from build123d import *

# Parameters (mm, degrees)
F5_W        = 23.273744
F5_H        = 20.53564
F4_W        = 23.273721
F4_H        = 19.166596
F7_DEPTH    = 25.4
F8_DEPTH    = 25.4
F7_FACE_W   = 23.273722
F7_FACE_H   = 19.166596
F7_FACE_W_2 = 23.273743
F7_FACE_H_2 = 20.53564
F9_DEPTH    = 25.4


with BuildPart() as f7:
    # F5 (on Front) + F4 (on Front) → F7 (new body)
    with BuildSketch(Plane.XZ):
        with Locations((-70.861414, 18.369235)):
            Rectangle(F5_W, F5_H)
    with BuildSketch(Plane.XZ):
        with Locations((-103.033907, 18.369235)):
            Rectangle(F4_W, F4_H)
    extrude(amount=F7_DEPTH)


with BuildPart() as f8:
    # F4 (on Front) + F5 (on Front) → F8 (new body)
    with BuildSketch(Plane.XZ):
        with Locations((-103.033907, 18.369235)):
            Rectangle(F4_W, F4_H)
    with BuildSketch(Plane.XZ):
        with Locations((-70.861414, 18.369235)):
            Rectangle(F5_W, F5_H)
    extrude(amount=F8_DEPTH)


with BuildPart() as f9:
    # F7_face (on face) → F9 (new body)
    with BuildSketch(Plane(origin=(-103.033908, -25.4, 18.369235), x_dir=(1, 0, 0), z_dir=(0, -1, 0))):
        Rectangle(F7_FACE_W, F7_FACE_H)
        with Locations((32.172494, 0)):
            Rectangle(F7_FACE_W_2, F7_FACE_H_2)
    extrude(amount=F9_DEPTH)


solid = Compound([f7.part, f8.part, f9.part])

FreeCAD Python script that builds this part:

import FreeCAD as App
import Part
import Sketcher
Q = App.Units.Quantity

doc = App.newDocument("Part")
body = doc.addObject("PartDesign::Body", "Body")
body.AllowCompound = True

# Sketch on XZ plane
sketch1 = body.newObject("Sketcher::SketchObject", "Sketch")
sketch1.AttachmentSupport = (doc.getObject("XZ_Plane"), [""])
sketch1.MapMode = "FlatFace"
sketch1.addGeometry([
    Part.LineSegment(App.Vector(-82, 29, 0), App.Vector(-82, 8, 0)),  # 0
    Part.LineSegment(App.Vector(-82, 8, 0), App.Vector(-59, 8, 0)),  # 1
    Part.LineSegment(App.Vector(-59, 8, 0), App.Vector(-59, 29, 0)),  # 2
    Part.LineSegment(App.Vector(-59, 29, 0), App.Vector(-82, 29, 0)),  # 3
    Part.LineSegment(App.Vector(-115, 28, 0), App.Vector(-115, 9, 0)),  # 4
    Part.LineSegment(App.Vector(-115, 9, 0), App.Vector(-91, 9, 0)),  # 5
    Part.LineSegment(App.Vector(-91, 9, 0), App.Vector(-91, 28, 0)),  # 6
    Part.LineSegment(App.Vector(-91, 28, 0), App.Vector(-115, 28, 0)),  # 7
], False)
sketch1.addConstraint([
    Sketcher.Constraint("Coincident", 0, 2, 1, 1),
    Sketcher.Constraint("Coincident", 1, 2, 2, 1),
    Sketcher.Constraint("Coincident", 2, 2, 3, 1),
    Sketcher.Constraint("Coincident", 3, 2, 0, 1),
    Sketcher.Constraint("Coincident", 4, 2, 5, 1),
    Sketcher.Constraint("Coincident", 5, 2, 6, 1),
    Sketcher.Constraint("Coincident", 6, 2, 7, 1),
    Sketcher.Constraint("Coincident", 7, 2, 4, 1),
    Sketcher.Constraint("Vertical", 0),
    Sketcher.Constraint("Horizontal", 1),
    Sketcher.Constraint("Vertical", 2),
    Sketcher.Constraint("Horizontal", 3),
    Sketcher.Constraint("Vertical", 4),
    Sketcher.Constraint("Horizontal", 5),
    Sketcher.Constraint("Vertical", 6),
    Sketcher.Constraint("Horizontal", 7),
    Sketcher.Constraint("DistanceX", 5, 1, 5, 2, Q("23.273721 mm")),
    Sketcher.Constraint("DistanceY", 0, 2, 0, 1, Q("20.53564 mm")),
    Sketcher.Constraint("DistanceX", 1, 1, 1, 2, Q("23.273744 mm")),
    Sketcher.Constraint("DistanceY", 4, 2, 4, 1, Q("19.166596 mm")),
    Sketcher.Constraint("DistanceX", 4, 2, 0, 2, Q("32.172482 mm")),
    Sketcher.Constraint("DistanceX", 0, 2, -1, 1, Q("82.498286 mm")),
    Sketcher.Constraint("DistanceY", -1, 1, 0, 2, Q("8.101415 mm")),
    Sketcher.Constraint("DistanceY", -1, 1, 4, 2, Q("8.785937 mm")),
])
pad1 = body.newObject("PartDesign::Pad", "Pad")
pad1.Profile = sketch1
pad1.Length = Q("1 in")
body2 = doc.addObject("PartDesign::Body", "Body001")
body2.AllowCompound = True

# Sketch on XZ plane
sketch2 = body2.newObject("Sketcher::SketchObject", "Sketch001")
sketch2.AttachmentSupport = (doc.getObject("XZ_Plane001"), [""])
sketch2.MapMode = "FlatFace"
sketch2.addGeometry([
    Part.LineSegment(App.Vector(-115, 28, 0), App.Vector(-115, 9, 0)),  # 0
    Part.LineSegment(App.Vector(-115, 9, 0), App.Vector(-91, 9, 0)),  # 1
    Part.LineSegment(App.Vector(-91, 9, 0), App.Vector(-91, 28, 0)),  # 2
    Part.LineSegment(App.Vector(-91, 28, 0), App.Vector(-115, 28, 0)),  # 3
    Part.LineSegment(App.Vector(-82, 29, 0), App.Vector(-82, 8, 0)),  # 4
    Part.LineSegment(App.Vector(-82, 8, 0), App.Vector(-59, 8, 0)),  # 5
    Part.LineSegment(App.Vector(-59, 8, 0), App.Vector(-59, 29, 0)),  # 6
    Part.LineSegment(App.Vector(-59, 29, 0), App.Vector(-82, 29, 0)),  # 7
], False)
sketch2.addConstraint([
    Sketcher.Constraint("Coincident", 0, 2, 1, 1),
    Sketcher.Constraint("Coincident", 1, 2, 2, 1),
    Sketcher.Constraint("Coincident", 2, 2, 3, 1),
    Sketcher.Constraint("Coincident", 3, 2, 0, 1),
    Sketcher.Constraint("Coincident", 4, 2, 5, 1),
    Sketcher.Constraint("Coincident", 5, 2, 6, 1),
    Sketcher.Constraint("Coincident", 6, 2, 7, 1),
    Sketcher.Constraint("Coincident", 7, 2, 4, 1),
    Sketcher.Constraint("Vertical", 0),
    Sketcher.Constraint("Horizontal", 1),
    Sketcher.Constraint("Vertical", 2),
    Sketcher.Constraint("Horizontal", 3),
    Sketcher.Constraint("Vertical", 4),
    Sketcher.Constraint("Horizontal", 5),
    Sketcher.Constraint("Vertical", 6),
    Sketcher.Constraint("Horizontal", 7),
    Sketcher.Constraint("DistanceX", 1, 1, 1, 2, Q("23.273721 mm")),
    Sketcher.Constraint("DistanceY", 4, 2, 4, 1, Q("20.53564 mm")),
    Sketcher.Constraint("DistanceX", 5, 1, 5, 2, Q("23.273744 mm")),
    Sketcher.Constraint("DistanceY", 0, 2, 0, 1, Q("19.166596 mm")),
    Sketcher.Constraint("DistanceX", 1, 2, 4, 2, Q("8.898761 mm")),
    Sketcher.Constraint("DistanceX", 0, 2, -1, 1, Q("114.670767 mm")),
    Sketcher.Constraint("DistanceY", -1, 1, 0, 2, Q("8.785937 mm")),
    Sketcher.Constraint("DistanceY", -1, 1, 4, 2, Q("8.101415 mm")),
])
pad2 = body2.newObject("PartDesign::Pad", "Pad001")
pad2.Profile = sketch2
pad2.Length = Q("1 in")
body3 = doc.addObject("PartDesign::Body", "Body002")
body3.AllowCompound = True

# Sketch on XZ plane
sketch3 = body3.newObject("Sketcher::SketchObject", "Sketch002")
sketch3.AttachmentSupport = (doc.getObject("XZ_Plane002"), [""])
sketch3.MapMode = "FlatFace"
sketch3.AttachmentOffset = App.Placement(App.Vector(0, 0, 1 * 25.4), App.Rotation())
sketch3.addGeometry([
    Part.LineSegment(App.Vector(-115, 28, 0), App.Vector(-115, 9, 0)),  # 0
    Part.LineSegment(App.Vector(-115, 9, 0), App.Vector(-91, 9, 0)),  # 1
    Part.LineSegment(App.Vector(-91, 9, 0), App.Vector(-91, 28, 0)),  # 2
    Part.LineSegment(App.Vector(-91, 28, 0), App.Vector(-115, 28, 0)),  # 3
    Part.LineSegment(App.Vector(-82, 29, 0), App.Vector(-82, 8, 0)),  # 4
    Part.LineSegment(App.Vector(-82, 8, 0), App.Vector(-59, 8, 0)),  # 5
    Part.LineSegment(App.Vector(-59, 8, 0), App.Vector(-59, 29, 0)),  # 6
    Part.LineSegment(App.Vector(-59, 29, 0), App.Vector(-82, 29, 0)),  # 7
], False)
sketch3.addConstraint([
    Sketcher.Constraint("Coincident", 0, 2, 1, 1),
    Sketcher.Constraint("Coincident", 1, 2, 2, 1),
    Sketcher.Constraint("Coincident", 2, 2, 3, 1),
    Sketcher.Constraint("Coincident", 3, 2, 0, 1),
    Sketcher.Constraint("Coincident", 4, 2, 5, 1),
    Sketcher.Constraint("Coincident", 5, 2, 6, 1),
    Sketcher.Constraint("Coincident", 6, 2, 7, 1),
    Sketcher.Constraint("Coincident", 7, 2, 4, 1),
    Sketcher.Constraint("Vertical", 0),
    Sketcher.Constraint("Horizontal", 1),
    Sketcher.Constraint("Vertical", 2),
    Sketcher.Constraint("Horizontal", 3),
    Sketcher.Constraint("Vertical", 4),
    Sketcher.Constraint("Horizontal", 5),
    Sketcher.Constraint("Vertical", 6),
    Sketcher.Constraint("Horizontal", 7),
    Sketcher.Constraint("DistanceY", 4, 2, 4, 1, Q("20.53564 mm")),
    Sketcher.Constraint("DistanceX", 1, 1, 1, 2, Q("23.273722 mm")),
    Sketcher.Constraint("DistanceX", 5, 1, 5, 2, Q("23.273743 mm")),
    Sketcher.Constraint("DistanceY", 0, 2, 0, 1, Q("19.166596 mm")),
    Sketcher.Constraint("DistanceX", 0, 2, -1, 1, Q("114.670769 mm")),
    Sketcher.Constraint("DistanceX", 1, 2, 4, 2, Q("8.898762 mm")),
    Sketcher.Constraint("DistanceY", -1, 1, 0, 2, Q("8.785937 mm")),
    Sketcher.Constraint("DistanceY", -1, 1, 4, 2, Q("8.101415 mm")),
])
pad3 = body3.newObject("PartDesign::Pad", "Pad002")
pad3.Profile = sketch3
pad3.Length = Q("1 in")

doc.recompute()
